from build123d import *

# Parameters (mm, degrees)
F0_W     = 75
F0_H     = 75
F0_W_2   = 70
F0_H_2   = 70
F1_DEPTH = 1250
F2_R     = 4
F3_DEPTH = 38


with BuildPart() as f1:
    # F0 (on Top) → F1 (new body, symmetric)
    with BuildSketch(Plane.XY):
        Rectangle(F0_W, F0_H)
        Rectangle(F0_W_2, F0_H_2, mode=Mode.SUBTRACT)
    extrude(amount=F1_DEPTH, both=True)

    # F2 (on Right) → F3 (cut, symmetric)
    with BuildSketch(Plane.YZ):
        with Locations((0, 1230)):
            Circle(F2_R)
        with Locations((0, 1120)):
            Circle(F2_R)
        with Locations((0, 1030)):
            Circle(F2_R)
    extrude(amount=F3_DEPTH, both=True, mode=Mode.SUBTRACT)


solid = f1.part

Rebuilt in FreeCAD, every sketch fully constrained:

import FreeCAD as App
import Part
import Sketcher

V = App.Vector
Q = App.Units.Quantity

doc = App.newDocument("Part")
body = doc.addObject("PartDesign::Body", "Body")

# Sketch on XY plane
sketch1 = body.newObject("Sketcher::SketchObject", "Sketch")
sketch1.AttachmentSupport = (doc.getObject("XY_Plane"), [""])
sketch1.MapMode = "FlatFace"
sketch1.addGeometry([
    Part.LineSegment(V(-38, 38, 0), V(-38, -38, 0)),  # 0
    Part.LineSegment(V(-38, -38, 0), V(38, -38, 0)),  # 1
    Part.LineSegment(V(38, -38, 0), V(38, 38, 0)),  # 2
    Part.LineSegment(V(38, 38, 0), V(-38, 38, 0)),  # 3
    Part.LineSegment(V(35, -35, 0), V(-35, -35, 0)),  # 4
    Part.LineSegment(V(-35, -35, 0), V(-35, 35, 0)),  # 5
    Part.LineSegment(V(-35, 35, 0), V(35, 35, 0)),  # 6
    Part.LineSegment(V(35, 35, 0), V(35, -35, 0)),  # 7
], False)
sketch1.addConstraint([
    Sketcher.Constraint("Coincident", 0, 2, 1, 1),
    Sketcher.Constraint("Coincident", 1, 2, 2, 1),
    Sketcher.Constraint("Coincident", 2, 2, 3, 1),
    Sketcher.Constraint("Coincident", 3, 2, 0, 1),
    Sketcher.Constraint("Coincident", 4, 2, 5, 1),
    Sketcher.Constraint("Coincident", 5, 2, 6, 1),
    Sketcher.Constraint("Coincident", 6, 2, 7, 1),
    Sketcher.Constraint("Coincident", 7, 2, 4, 1),
    Sketcher.Constraint("Vertical", 0),
    Sketcher.Constraint("Horizontal", 1),
    Sketcher.Constraint("Vertical", 2),
    Sketcher.Constraint("Horizontal", 3),
    Sketcher.Constraint("Horizontal", 4),
    Sketcher.Constraint("Vertical", 5),
    Sketcher.Constraint("Horizontal", 6),
    Sketcher.Constraint("Vertical", 7),
    Sketcher.Constraint("Symmetric", 0, 2, 2, 2, -1, 1),
    Sketcher.Constraint("Symmetric", 4, 2, 6, 2, -1, 1),
    Sketcher.Constraint("Equal", 3, 0),
    Sketcher.Constraint("Equal", 6, 5),
    Sketcher.Constraint("DistanceX", 1, 1, 1, 2, Q("75 mm")),
    Sketcher.Constraint("DistanceX", 4, 2, 4, 1, Q("70 mm")),
])
pad1 = body.newObject("PartDesign::Pad", "Pad")
pad1.Profile = sketch1
pad1.Length = 2500
pad1.Midplane = True

# Sketch on YZ plane
sketch2 = body.newObject("Sketcher::SketchObject", "Sketch001")
sketch2.AttachmentSupport = (doc.getObject("YZ_Plane"), [""])
sketch2.MapMode = "FlatFace"
sketch2.addGeometry([
    Part.Circle(V(0, 1230, 0), V(0, 0, 1), 4),
    Part.Circle(V(0, 1120, 0), V(0, 0, 1), 4),
    Part.Circle(V(0, 1030, 0), V(0, 0, 1), 4),
], False)
sketch2.addConstraint([
    Sketcher.Constraint("Equal", 0, 1),
    Sketcher.Constraint("Equal", 1, 2),
    Sketcher.Constraint("PointOnObject", 0, 3, -2),
    Sketcher.Constraint("PointOnObject", 1, 3, -2),
    Sketcher.Constraint("PointOnObject", 2, 3, -2),
    Sketcher.Constraint("Diameter", 0, Q("8 mm")),
    Sketcher.Constraint("DistanceY", -1, 1, 0, 3, Q("1230 mm")),
    Sketcher.Constraint("DistanceY", -1, 1, 1, 3, Q("1120 mm")),
    Sketcher.Constraint("DistanceY", -1, 1, 2, 3, Q("1030 mm")),
])
pocket1 = body.newObject("PartDesign::Pocket", "Pocket")
pocket1.Profile = sketch2
pocket1.Length = 76
pocket1.Midplane = True

doc.recompute()
